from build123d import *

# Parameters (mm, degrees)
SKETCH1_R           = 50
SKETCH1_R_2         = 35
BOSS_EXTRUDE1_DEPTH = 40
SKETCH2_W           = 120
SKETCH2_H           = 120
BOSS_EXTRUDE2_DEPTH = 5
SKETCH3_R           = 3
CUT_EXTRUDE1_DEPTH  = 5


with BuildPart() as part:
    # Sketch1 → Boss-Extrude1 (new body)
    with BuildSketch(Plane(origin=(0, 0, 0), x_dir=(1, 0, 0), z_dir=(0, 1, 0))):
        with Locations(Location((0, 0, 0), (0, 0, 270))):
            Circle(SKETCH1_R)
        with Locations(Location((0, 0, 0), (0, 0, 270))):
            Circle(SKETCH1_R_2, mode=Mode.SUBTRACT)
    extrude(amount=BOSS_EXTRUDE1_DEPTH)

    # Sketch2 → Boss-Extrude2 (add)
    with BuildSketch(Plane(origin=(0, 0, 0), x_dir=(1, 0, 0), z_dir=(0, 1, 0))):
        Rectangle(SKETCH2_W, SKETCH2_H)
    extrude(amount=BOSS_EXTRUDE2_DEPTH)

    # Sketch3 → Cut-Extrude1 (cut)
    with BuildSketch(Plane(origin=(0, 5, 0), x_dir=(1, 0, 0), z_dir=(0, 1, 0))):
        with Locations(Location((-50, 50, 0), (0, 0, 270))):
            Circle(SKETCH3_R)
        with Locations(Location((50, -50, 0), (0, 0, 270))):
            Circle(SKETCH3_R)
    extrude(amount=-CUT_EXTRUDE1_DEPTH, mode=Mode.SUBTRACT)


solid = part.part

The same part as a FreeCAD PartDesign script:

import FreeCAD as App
import Part
import Sketcher
Q = App.Units.Quantity

doc = App.newDocument("Part")
params = doc.addObject("Spreadsheet::Sheet", "Params")
for row, (alias, value) in enumerate([
    ("sketch1_diameter", "100 mm"),
    ("sketch1_diameter2", "70 mm"),
    ("pad1_length", "40 mm"),
    ("sketch2_width", "120 mm"),
    ("pad2_length", "5 mm"),
    ("sketch3_diameter", "6 mm"),
    ("pocket1_length", "5 mm"),
], start=1):
    params.set(f"A{row}", alias)
    params.set(f"B{row}", "=" + value)
    params.setAlias(f"B{row}", alias)

body = doc.addObject("PartDesign::Body", "Body")

sketch1 = body.newObject("Sketcher::SketchObject", "Sketch")
sketch1.AttachmentSupport = (doc.getObject("XZ_Plane"), [""])
sketch1.MapMode = "FlatFace"
sketch1.addGeometry(Part.Circle(App.Vector(0, 0, 0), App.Vector(0, 0, 1), 50), False)
sketch1.addGeometry(Part.Circle(App.Vector(0, 0, 0), App.Vector(0, 0, 1), 35), False)
sketch1.addConstraint(Sketcher.Constraint("Coincident", 0, 3, -1, 1))
sketch1.addConstraint(Sketcher.Constraint("Coincident", 1, 3, -1, 1))
sketch1.addConstraint(Sketcher.Constraint("Diameter", 0, Q("100 mm")))
sketch1.addConstraint(Sketcher.Constraint("Diameter", 1, Q("70 mm")))
sketch1.setExpression("Constraints[2]", "Params.sketch1_diameter")
sketch1.setExpression("Constraints[3]", "Params.sketch1_diameter2")
pad1 = body.newObject("PartDesign::Pad", "Pad")
pad1.Profile = sketch1
pad1.setExpression("Length", "Params.pad1_length")
pad1.Reversed = True

sketch2 = body.newObject("Sketcher::SketchObject", "Sketch001")
sketch2.AttachmentSupport = (doc.getObject("XZ_Plane"), [""])
sketch2.MapMode = "FlatFace"
sketch2.addGeometry(Part.LineSegment(App.Vector(-60, -60, 0), App.Vector(-60, 60, 0)), False)
sketch2.addGeometry(Part.LineSegment(App.Vector(-60, 60, 0), App.Vector(60, 60, 0)), False)
sketch2.addGeometry(Part.LineSegment(App.Vector(60, 60, 0), App.Vector(60, -60, 0)), False)
sketch2.addGeometry(Part.LineSegment(App.Vector(60, -60, 0), App.Vector(-60, -60, 0)), False)
sketch2.addConstraint(Sketcher.Constraint("Coincident", 0, 2, 1, 1))
sketch2.addConstraint(Sketcher.Constraint("Coincident", 1, 2, 2, 1))
sketch2.addConstraint(Sketcher.Constraint("Coincident", 2, 2, 3, 1))
sketch2.addConstraint(Sketcher.Constraint("Coincident", 3, 2, 0, 1))
sketch2.addConstraint(Sketcher.Constraint("Vertical", 0))
sketch2.addConstraint(Sketcher.Constraint("Horizontal", 1))
sketch2.addConstraint(Sketcher.Constraint("Vertical", 2))
sketch2.addConstraint(Sketcher.Constraint("Horizontal", 3))
sketch2.addConstraint(Sketcher.Constraint("Symmetric", 0, 2, 2, 2, -1, 1))
sketch2.addConstraint(Sketcher.Constraint("Equal", 3, 0))
sketch2.addConstraint(Sketcher.Constraint("DistanceX", 1, 1, 1, 2, Q("120 mm")))
sketch2.setExpression("Constraints[10]", "Params.sketch2_width")
pad2 = body.newObject("PartDesign::Pad", "Pad001")
pad2.Profile = sketch2
pad2.setExpression("Length", "Params.pad2_length")
pad2.Reversed = True

sketch3 = body.newObject("Sketcher::SketchObject", "Sketch002")
sketch3.AttachmentSupport = (doc.getObject("XZ_Plane"), [""])
sketch3.MapMode = "FlatFace"
sketch3.AttachmentOffset = App.Placement(App.Vector(0, 0, -5), App.Rotation())
sketch3.addGeometry(Part.Circle(App.Vector(-50, -50, 0), App.Vector(0, 0, 1), 3), False)
sketch3.addGeometry(Part.Circle(App.Vector(50, 50, 0), App.Vector(0, 0, 1), 3), False)
sketch3.addConstraint(Sketcher.Constraint("Equal", 0, 1))
sketch3.addConstraint(Sketcher.Constraint("Symmetric", 0, 3, 1, 3, -1, 1))
sketch3.addConstraint(Sketcher.Constraint("Diameter", 0, Q("6 mm")))
sketch3.addConstraint(Sketcher.Constraint("DistanceX", 0, 3, -1, 1, Q("50 mm")))
sketch3.addConstraint(Sketcher.Constraint("DistanceY", 0, 3, -1, 1, Q("50 mm")))
sketch3.setExpression("Constraints[2]", "Params.sketch3_diameter")
pocket1 = body.newObject("PartDesign::Pocket", "Pocket")
pocket1.Profile = sketch3
pocket1.setExpression("Length", "Params.pocket1_length")
pocket1.Reversed = True

doc.recompute()
